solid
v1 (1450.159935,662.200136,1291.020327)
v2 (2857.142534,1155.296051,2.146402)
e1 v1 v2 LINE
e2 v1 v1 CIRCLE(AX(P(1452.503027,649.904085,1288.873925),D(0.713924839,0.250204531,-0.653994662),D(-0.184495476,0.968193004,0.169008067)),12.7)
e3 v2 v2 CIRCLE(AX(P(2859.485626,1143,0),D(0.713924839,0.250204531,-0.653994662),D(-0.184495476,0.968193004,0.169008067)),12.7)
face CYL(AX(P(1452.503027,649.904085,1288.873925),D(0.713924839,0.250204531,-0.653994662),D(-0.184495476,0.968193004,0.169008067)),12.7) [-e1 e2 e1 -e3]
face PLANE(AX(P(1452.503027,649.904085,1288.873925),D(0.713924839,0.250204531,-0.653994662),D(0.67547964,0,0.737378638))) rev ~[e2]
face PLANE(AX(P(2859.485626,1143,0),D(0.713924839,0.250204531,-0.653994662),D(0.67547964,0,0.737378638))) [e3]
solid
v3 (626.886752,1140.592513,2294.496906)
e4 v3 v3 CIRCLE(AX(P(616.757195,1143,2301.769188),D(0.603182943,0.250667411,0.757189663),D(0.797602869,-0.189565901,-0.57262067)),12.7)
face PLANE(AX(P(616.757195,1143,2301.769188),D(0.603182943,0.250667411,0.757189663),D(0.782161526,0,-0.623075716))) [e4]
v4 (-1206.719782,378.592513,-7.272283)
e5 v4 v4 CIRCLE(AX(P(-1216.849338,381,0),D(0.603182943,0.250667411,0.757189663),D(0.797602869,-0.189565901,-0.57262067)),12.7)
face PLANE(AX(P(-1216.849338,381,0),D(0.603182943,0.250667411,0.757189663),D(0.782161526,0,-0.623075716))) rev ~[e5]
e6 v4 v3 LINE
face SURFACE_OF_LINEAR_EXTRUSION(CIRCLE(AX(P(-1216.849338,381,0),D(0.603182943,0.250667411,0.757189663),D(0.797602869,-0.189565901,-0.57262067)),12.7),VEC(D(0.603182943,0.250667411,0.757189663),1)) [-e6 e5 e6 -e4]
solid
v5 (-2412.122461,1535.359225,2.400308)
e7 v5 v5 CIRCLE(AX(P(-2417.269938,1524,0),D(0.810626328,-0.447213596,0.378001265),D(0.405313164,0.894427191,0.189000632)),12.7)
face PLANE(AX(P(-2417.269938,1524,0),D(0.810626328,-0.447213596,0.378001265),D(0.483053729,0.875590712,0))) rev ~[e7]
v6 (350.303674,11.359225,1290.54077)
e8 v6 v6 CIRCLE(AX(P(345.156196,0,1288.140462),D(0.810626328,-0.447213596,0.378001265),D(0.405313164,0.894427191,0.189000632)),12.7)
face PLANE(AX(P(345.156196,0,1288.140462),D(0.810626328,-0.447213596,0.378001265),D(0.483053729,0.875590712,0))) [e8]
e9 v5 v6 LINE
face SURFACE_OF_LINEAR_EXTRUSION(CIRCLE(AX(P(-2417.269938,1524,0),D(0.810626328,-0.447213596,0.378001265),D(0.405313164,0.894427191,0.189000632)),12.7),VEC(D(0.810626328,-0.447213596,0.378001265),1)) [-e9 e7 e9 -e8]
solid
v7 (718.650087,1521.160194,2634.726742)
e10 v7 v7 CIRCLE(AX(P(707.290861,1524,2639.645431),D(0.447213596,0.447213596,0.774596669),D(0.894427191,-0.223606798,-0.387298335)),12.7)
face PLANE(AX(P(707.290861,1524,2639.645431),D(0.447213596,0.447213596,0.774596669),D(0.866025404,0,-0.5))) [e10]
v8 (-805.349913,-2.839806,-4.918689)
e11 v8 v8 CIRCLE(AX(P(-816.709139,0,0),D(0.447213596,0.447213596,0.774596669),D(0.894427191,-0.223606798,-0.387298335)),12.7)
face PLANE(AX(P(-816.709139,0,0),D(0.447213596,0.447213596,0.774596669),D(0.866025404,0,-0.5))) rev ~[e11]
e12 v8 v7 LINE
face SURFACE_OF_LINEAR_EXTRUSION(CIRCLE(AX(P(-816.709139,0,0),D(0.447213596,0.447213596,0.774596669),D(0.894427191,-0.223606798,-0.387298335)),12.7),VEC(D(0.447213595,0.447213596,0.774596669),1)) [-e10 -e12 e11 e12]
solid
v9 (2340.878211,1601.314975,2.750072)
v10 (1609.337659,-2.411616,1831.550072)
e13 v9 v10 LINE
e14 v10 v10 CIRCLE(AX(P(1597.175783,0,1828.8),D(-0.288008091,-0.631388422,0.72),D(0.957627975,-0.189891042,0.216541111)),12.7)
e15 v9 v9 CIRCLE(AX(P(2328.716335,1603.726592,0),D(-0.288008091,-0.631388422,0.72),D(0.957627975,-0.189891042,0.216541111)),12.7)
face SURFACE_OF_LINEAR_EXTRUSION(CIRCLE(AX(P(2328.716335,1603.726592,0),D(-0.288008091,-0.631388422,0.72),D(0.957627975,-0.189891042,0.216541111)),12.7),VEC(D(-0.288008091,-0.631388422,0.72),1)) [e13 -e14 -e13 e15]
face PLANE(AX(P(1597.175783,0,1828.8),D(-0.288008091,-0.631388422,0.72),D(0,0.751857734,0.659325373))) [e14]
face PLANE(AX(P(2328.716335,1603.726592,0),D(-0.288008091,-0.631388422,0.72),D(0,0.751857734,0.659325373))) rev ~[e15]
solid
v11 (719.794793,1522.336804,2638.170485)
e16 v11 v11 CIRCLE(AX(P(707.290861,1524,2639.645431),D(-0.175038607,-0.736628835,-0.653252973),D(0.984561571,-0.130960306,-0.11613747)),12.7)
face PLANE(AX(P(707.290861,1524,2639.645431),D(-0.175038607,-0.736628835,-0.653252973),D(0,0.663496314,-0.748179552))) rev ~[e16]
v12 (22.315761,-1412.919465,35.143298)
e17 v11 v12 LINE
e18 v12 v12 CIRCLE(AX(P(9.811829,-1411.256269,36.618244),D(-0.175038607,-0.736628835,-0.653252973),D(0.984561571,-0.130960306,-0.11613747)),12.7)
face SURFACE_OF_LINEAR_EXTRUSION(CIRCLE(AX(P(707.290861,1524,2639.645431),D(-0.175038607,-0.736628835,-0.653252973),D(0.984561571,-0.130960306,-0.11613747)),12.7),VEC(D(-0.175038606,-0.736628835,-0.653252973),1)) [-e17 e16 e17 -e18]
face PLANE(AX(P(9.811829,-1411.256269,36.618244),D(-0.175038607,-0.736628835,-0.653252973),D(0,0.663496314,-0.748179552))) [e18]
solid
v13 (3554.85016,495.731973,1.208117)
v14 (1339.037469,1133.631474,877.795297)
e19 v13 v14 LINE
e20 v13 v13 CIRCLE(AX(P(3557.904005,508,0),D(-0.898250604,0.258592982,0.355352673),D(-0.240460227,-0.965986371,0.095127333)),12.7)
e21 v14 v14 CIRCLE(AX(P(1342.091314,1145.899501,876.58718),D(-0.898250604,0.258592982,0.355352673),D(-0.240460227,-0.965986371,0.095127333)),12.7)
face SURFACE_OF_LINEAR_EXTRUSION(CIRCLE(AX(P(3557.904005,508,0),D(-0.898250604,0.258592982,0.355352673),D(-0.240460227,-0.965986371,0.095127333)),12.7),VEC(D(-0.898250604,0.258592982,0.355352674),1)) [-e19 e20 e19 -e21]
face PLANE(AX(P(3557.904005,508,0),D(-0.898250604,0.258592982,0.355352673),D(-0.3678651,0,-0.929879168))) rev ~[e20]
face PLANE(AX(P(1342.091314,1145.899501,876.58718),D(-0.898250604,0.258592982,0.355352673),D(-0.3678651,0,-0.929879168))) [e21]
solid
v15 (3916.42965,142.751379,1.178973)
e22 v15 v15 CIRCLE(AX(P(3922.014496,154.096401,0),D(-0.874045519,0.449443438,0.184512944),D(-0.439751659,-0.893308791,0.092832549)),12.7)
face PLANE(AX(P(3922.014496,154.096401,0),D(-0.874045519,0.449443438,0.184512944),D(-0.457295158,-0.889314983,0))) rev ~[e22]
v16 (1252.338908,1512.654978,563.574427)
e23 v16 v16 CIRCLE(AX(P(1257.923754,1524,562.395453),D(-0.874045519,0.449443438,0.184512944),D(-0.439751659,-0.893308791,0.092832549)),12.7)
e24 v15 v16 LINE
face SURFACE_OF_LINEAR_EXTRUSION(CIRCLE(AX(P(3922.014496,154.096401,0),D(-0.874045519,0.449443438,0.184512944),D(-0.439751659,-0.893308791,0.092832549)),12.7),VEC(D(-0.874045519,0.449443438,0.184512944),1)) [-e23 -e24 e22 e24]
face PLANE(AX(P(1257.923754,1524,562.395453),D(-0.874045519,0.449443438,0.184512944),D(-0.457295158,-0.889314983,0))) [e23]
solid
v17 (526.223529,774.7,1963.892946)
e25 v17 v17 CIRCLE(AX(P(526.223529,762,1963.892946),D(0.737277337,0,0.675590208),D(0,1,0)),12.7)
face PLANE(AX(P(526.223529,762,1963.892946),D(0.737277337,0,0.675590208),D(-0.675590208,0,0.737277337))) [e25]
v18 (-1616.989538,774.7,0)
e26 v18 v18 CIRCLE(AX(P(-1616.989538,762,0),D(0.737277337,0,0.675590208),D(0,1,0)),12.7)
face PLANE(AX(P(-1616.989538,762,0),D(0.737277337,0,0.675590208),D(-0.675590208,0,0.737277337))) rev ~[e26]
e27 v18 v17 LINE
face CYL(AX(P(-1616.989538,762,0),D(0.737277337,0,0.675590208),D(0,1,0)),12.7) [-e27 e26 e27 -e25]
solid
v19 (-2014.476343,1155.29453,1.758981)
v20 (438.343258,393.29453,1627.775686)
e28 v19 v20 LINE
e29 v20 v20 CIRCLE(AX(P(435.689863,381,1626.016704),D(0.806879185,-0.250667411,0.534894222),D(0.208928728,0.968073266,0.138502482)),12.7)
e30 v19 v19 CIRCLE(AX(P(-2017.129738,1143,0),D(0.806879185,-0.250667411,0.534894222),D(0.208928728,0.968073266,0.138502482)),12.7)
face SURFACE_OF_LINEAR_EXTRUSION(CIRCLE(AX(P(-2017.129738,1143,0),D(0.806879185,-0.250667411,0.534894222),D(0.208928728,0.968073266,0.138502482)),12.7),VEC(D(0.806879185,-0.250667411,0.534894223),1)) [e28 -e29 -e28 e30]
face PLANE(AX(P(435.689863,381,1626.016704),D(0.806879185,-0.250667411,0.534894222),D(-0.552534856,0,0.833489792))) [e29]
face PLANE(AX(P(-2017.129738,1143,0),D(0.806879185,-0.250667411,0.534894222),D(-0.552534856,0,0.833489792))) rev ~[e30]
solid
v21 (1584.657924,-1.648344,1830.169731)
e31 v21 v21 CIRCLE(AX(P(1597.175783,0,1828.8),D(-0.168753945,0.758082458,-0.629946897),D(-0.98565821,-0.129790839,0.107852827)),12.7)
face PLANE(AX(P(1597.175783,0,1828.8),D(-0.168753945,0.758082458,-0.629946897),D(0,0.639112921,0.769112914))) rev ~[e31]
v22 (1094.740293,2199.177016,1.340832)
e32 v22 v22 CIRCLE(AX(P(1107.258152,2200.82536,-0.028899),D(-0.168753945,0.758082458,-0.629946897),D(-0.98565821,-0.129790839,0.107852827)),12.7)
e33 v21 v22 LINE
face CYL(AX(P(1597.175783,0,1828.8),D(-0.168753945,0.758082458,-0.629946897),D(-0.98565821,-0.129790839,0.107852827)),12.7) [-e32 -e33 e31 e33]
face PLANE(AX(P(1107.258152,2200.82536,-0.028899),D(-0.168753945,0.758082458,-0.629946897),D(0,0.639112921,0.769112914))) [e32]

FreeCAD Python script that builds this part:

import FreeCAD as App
import Part
import Sketcher

V = App.Vector
Q = App.Units.Quantity

doc = App.newDocument("Part")
body = doc.addObject("PartDesign::Body", "Body")

# Sketch on an angled plane
sketch1 = doc.addObject("Sketcher::SketchObject", "Sketch")
body.addObject(sketch1)
sketch1.Placement = App.Placement(V(520.001502, 2188.363517, 1940.672026), App.Rotation(V(0.984561571, -0.130960306, -0.11613747), V(0, -0.663496314, 0.748179553), V(-0.175038607, -0.736628835, -0.653252973), "ZXY"))
sketch1.addGeometry(Part.Circle(V(190, 964, 0), V(0, 0, 1), 13), False)
sketch1.addConstraint(Sketcher.Constraint("Diameter", 0, Q("1 in")))
sketch1.addConstraint(Sketcher.Constraint("DistanceX", -1, 1, 0, 3, 190.226153))
sketch1.addConstraint(Sketcher.Constraint("DistanceY", -1, 1, 0, 3, 963.760355))

# Sketch on an angled plane
sketch2 = doc.addObject("Sketcher::SketchObject", "Sketch001")
body.addObject(sketch2)
sketch2.Placement = App.Placement(V(0, -639.451442, 721.065789), App.Rotation(V(0, -0.748179552, -0.663496314), V(1.000000001, 0, 0), V(0, -0.663496314, 0.748179552), "ZXY"))
sketch2.addGeometry(Part.LineSegment(V(-2892, 707, 0), V(1032, 10, 0)), False)
sketch2.addConstraint(Sketcher.Constraint("DistanceX", 0, 1, -1, 1, 2891.620652))
sketch2.addConstraint(Sketcher.Constraint("DistanceY", -1, 1, 0, 2, 9.811829))
sketch2.addConstraint(Sketcher.Constraint("Distance", 0, 3984.715414))
sketch2.addConstraint(Sketcher.Constraint("DistanceY", -1, 1, 0, 1, 707.290862))
doc.recompute()

additivepipe = doc.addObject("PartDesign::AdditivePipe", "AdditivePipe")
body.addObject(additivepipe)
additivepipe.Profile = sketch1
additivepipe.Spine = (sketch2, ["Edge1"])
body2 = doc.addObject("PartDesign::Body", "Body001")

# Sketch on an angled plane
sketch3 = doc.addObject("Sketcher::SketchObject", "Sketch002")
body2.addObject(sketch3)
sketch3.Placement = App.Placement(V(621.516466, -342.883773, 289.817888), App.Rotation(V(0.405313164, 0.894427191, 0.189000632), V(-0.422618262, 0, 0.906307787), V(0.810626328, -0.447213596, 0.378001265), "ZXY"))
sketch3.addGeometry(Part.Circle(V(383, 1022, 0), V(0, 0, 1), 13), False)
sketch3.addConstraint(Sketcher.Constraint("Diameter", 0, Q("1 in")))
sketch3.addConstraint(Sketcher.Constraint("DistanceX", -1, 1, 0, 3, 383.355712))
sketch3.addConstraint(Sketcher.Constraint("DistanceY", -1, 1, 0, 3, 1021.58242))

# Sketch on an angled plane
sketch4 = doc.addObject("Sketcher::SketchObject", "Sketch003")
body2.addObject(sketch4)
sketch4.Placement = App.Placement(V(80.539059, 145.986353, 0), App.Rotation(V(0.875590712, -0.483053729, 0), V(0, 0, 1), V(-0.483053729, -0.875590712, 0), "ZXY"))
sketch4.addGeometry(Part.LineSegment(V(-2853, 0, 0), V(302, 1288, 0)), False)
sketch4.addConstraint(Sketcher.Constraint("PointOnObject", 0, 1, -1))
sketch4.addConstraint(Sketcher.Constraint("DistanceX", 0, 1, -1, 1, 2852.71299))
sketch4.addConstraint(Sketcher.Constraint("DistanceX", -1, 1, 0, 2, 302.21556))
sketch4.addConstraint(Sketcher.Constraint("DistanceY", -1, 1, 0, 2, 1288.140462))
doc.recompute()

additivepipe2 = doc.addObject("PartDesign::AdditivePipe", "AdditivePipe001")
body2.addObject(additivepipe2)
additivepipe2.Profile = sketch3
additivepipe2.Spine = (sketch4, ["Edge1"])
body3 = doc.addObject("PartDesign::Body", "Body002")

# Sketch on an angled plane
sketch5 = doc.addObject("Sketcher::SketchObject", "Sketch004")
body3.addObject(sketch5)
sketch5.Placement = App.Placement(V(908.377921, -282.199301, 602.179497), App.Rotation(V(0.208928728, 0.968073266, 0.138502482), V(-0.552534855, 0, 0.833489791), V(0.806879185, -0.250667411, 0.534894222), "ZXY"))
sketch5.addGeometry(Part.Circle(V(685, 1115, 0), V(0, 0, 1), 13), False)
sketch5.addConstraint(Sketcher.Constraint("Diameter", 0, Q("1 in")))
sketch5.addConstraint(Sketcher.Constraint("DistanceX", -1, 1, 0, 3, 685.071392))
sketch5.addConstraint(Sketcher.Constraint("DistanceY", -1, 1, 0, 3, 1114.534487))

# Sketch on an angled plane
sketch6 = doc.addObject("Sketcher::SketchObject", "Sketch005")
body3.addObject(sketch6)
sketch6.Placement = App.Placement(V(-615.819153, 0, 928.953119), App.Rotation(V(0.833489792, 0, 0.552534856), V(0, 1, 0), V(-0.552534856, 0, 0.833489792), "ZXY"))
sketch6.addGeometry(Part.LineSegment(V(-1681, 1143, 0), V(1262, 381, 0)), False)
sketch6.addConstraint(Sketcher.Constraint("DistanceY", -1, 1, 0, 1, Q("45 in")))
sketch6.addConstraint(Sketcher.Constraint("DistanceY", -1, 1, 0, 2, Q("15 in")))
sketch6.addConstraint(Sketcher.Constraint("Distance", 0, 3039.884591))
sketch6.addConstraint(Sketcher.Constraint("DistanceX", -1, 1, 0, 2, 1261.573959))
doc.recompute()

additivepipe3 = doc.addObject("PartDesign::AdditivePipe", "AdditivePipe002")
body3.addObject(additivepipe3)
additivepipe3.Profile = sketch5
additivepipe3.Spine = (sketch6, ["Edge1"])
body4 = doc.addObject("PartDesign::Body", "Body003")

# Sketch on an angled plane
sketch7 = doc.addObject("Sketcher::SketchObject", "Sketch006")
body4.addObject(sketch7)
sketch7.Placement = App.Placement(V(1264.253336, 0, 1158.474744), App.Rotation(V(0, 1, 0), V(-0.675590208, 0, 0.737277337), V(0.737277337, 0, 0.675590208), "ZXY"))
sketch7.addGeometry(Part.Circle(V(762, 1092, 0), V(0, 0, 1), 13), False)
sketch7.addConstraint(Sketcher.Constraint("Diameter", 0, Q("1 in")))
sketch7.addConstraint(Sketcher.Constraint("DistanceX", -1, 1, 0, 3, Q("30 in")))
sketch7.addConstraint(Sketcher.Constraint("DistanceY", -1, 1, 0, 3, 1092.422299))

# Sketch on an angled plane
sketch8 = doc.addObject("Sketcher::SketchObject", "Sketch007")
body4.addObject(sketch8)
sketch8.Placement = App.Placement(V(-738.029807, 0, 805.418203), App.Rotation(V(0.737277337, 0, 0.675590208), V(0, 1.000000001, 0), V(-0.675590208, 0, 0.737277337), "ZXY"))
sketch8.addGeometry(Part.LineSegment(V(-1192, 762, 0), V(1715, 762, 0)), False)
sketch8.addConstraint(Sketcher.Constraint("Horizontal", 0))
sketch8.addConstraint(Sketcher.Constraint("DistanceY", -1, 1, 0, 1, Q("30 in")))
sketch8.addConstraint(Sketcher.Constraint("DistanceX", 0, 1, 0, 2, 2906.929268))
sketch8.addConstraint(Sketcher.Constraint("DistanceX", 0, 1, -1, 1, 1192.169742))
doc.recompute()

additivepipe4 = doc.addObject("PartDesign::AdditivePipe", "AdditivePipe003")
body4.addObject(additivepipe4)
additivepipe4.Profile = sketch7
additivepipe4.Spine = (sketch8, ["Edge1"])
body5 = doc.addObject("PartDesign::Body", "Body004")

# Sketch on an angled plane
sketch9 = doc.addObject("Sketcher::SketchObject", "Sketch008")
body5.addObject(sketch9)
sketch9.Placement = App.Placement(V(1448.487204, 601.954252, 1818.319882), App.Rotation(V(0.797602869, -0.189565901, -0.57262067), V(0, 0.949331669, -0.314275964), V(0.603182943, 0.250667411, 0.757189663), "ZXY"))
sketch9.addGeometry(Part.Circle(V(-1043, 362, 0), V(0, 0, 1), 13), False)
sketch9.addConstraint(Sketcher.Constraint("Diameter", 0, Q("1 in")))
sketch9.addConstraint(Sketcher.Constraint("DistanceX", 0, 3, -1, 1, 1042.787131))
sketch9.addConstraint(Sketcher.Constraint("DistanceY", -1, 1, 0, 3, 361.695365))

# Sketch on an angled plane
sketch10 = doc.addObject("Sketcher::SketchObject", "Sketch009")
body5.addObject(sketch10)
sketch10.Placement = App.Placement(V(-744.440015, 0, 593.026478), App.Rotation(V(0.623075716, 0, 0.782161526), V(0, 1.000000001, 0), V(-0.782161526, 0, 0.623075716), "ZXY"))
sketch10.addGeometry(Part.LineSegment(V(-758, 381, 0), V(2185, 1143, 0)), False)
sketch10.addConstraint(Sketcher.Constraint("DistanceY", -1, 1, 0, 1, Q("15 in")))
sketch10.addConstraint(Sketcher.Constraint("DistanceY", -1, 1, 0, 2, Q("45.0000001 in")))
sketch10.addConstraint(Sketcher.Constraint("Distance", 0, 3039.884592))
sketch10.addConstraint(Sketcher.Constraint("DistanceX", 0, 1, -1, 1, 758.189273))
doc.recompute()

additivepipe5 = doc.addObject("PartDesign::AdditivePipe", "AdditivePipe004")
body5.addObject(additivepipe5)
additivepipe5.Profile = sketch9
additivepipe5.Spine = (sketch10, ["Edge1"])
body6 = doc.addObject("PartDesign::Body", "Body005")

# Sketch on an angled plane
sketch11 = doc.addObject("Sketcher::SketchObject", "Sketch010")
body6.addObject(sketch11)
sketch11.Placement = App.Placement(V(1360.658172, 1360.658172, 2356.729086), App.Rotation(V(0.894427191, -0.223606798, -0.387298335), V(0, 0.866025404, -0.500000001), V(0.447213596, 0.447213596, 0.774596669), "ZXY"))
sketch11.addGeometry(Part.Circle(V(-730, 0, 0), V(0, 0, 1), 13), False)
sketch11.addConstraint(Sketcher.Constraint("PointOnObject", 0, 3, -1))
sketch11.addConstraint(Sketcher.Constraint("Diameter", 0, Q("1 in")))
sketch11.addConstraint(Sketcher.Constraint("DistanceX", 0, 3, -1, 1, 730.486861))

# Sketch on an angled plane
sketch12 = doc.addObject("Sketcher::SketchObject", "Sketch011")
body6.addObject(sketch12)
sketch12.Placement = App.Placement(V(0, 0, 0), App.Rotation(V(0, 0.5, 0.866025404), V(1, 0, 0), V(0, 0.866025404, -0.5), "ZXY"))
sketch12.addGeometry(Part.LineSegment(V(0, -817, 0), V(3048, 707, 0)), False)
sketch12.addConstraint(Sketcher.Constraint("PointOnObject", 0, 1, -2))
sketch12.addConstraint(Sketcher.Constraint("DistanceX", -1, 1, 0, 2, Q("120 in")))
sketch12.addConstraint(Sketcher.Constraint("DistanceY", 0, 1, 0, 2, Q("60 in")))
sketch12.addConstraint(Sketcher.Constraint("DistanceY", 0, 1, -1, 1, 816.709139))
doc.recompute()

additivepipe6 = doc.addObject("PartDesign::AdditivePipe", "AdditivePipe005")
body6.addObject(additivepipe6)
additivepipe6.Profile = sketch11
additivepipe6.Spine = (sketch12, ["Edge1"])
body7 = doc.addObject("PartDesign::Body", "Body006")

# Sketch on an angled plane
sketch13 = doc.addObject("Sketcher::SketchObject", "Sketch012")
body7.addObject(sketch13)
sketch13.Placement = App.Placement(V(239.89666, -1077.672283, 895.517768), App.Rotation(V(-0.98565821, -0.129790839, 0.107852827), V(0, 0.639112921, 0.769112915), V(-0.168753945, 0.758082458, -0.629946897), "ZXY"))
sketch13.addGeometry(Part.Circle(V(-1377, 1407, 0), V(0, 0, 1), 13), False)
sketch13.addConstraint(Sketcher.Constraint("Diameter", 0, Q("1 in")))
sketch13.addConstraint(Sketcher.Constraint("DistanceY", -1, 1, 0, 3, 1406.553699))
sketch13.addConstraint(Sketcher.Constraint("DistanceX", 0, 3, -1, 1, 1377.028175))

# Sketch on an angled plane
sketch14 = doc.addObject("Sketcher::SketchObject", "Sketch013")
body7.addObject(sketch14)
sketch14.Placement = App.Placement(V(0, 898.946642, 1081.798613), App.Rotation(V(0, 0.769112914, -0.639112921), V(1, 0, 0), V(0, -0.639112921, -0.769112914), "ZXY"))
sketch14.addGeometry(Part.LineSegment(V(-1169, 1597, 0), V(1693, 1107, 0)), False)
sketch14.addConstraint(Sketcher.Constraint("Distance", 0, 2903.147722))
sketch14.addConstraint(Sketcher.Constraint("DistanceX", 0, 1, -1, 1, 1168.80971))
sketch14.addConstraint(Sketcher.Constraint("DistanceY", 0, 2, 0, 1, 489.917631))
sketch14.addConstraint(Sketcher.Constraint("DistanceY", -1, 1, 0, 1, 1597.175784))
doc.recompute()

additivepipe7 = doc.addObject("PartDesign::AdditivePipe", "AdditivePipe006")
body7.addObject(additivepipe7)
additivepipe7.Profile = sketch13
additivepipe7.Spine = (sketch14, ["Edge1"])
body8 = doc.addObject("PartDesign::Body", "Body007")

# Sketch on an angled plane
sketch15 = doc.addObject("Sketcher::SketchObject", "Sketch014")
body8.addObject(sketch15)
sketch15.Placement = App.Placement(V(-246.74703, -540.933476, 616.850245), App.Rotation(V(0.957627975, -0.189891042, 0.216541111), V(0, 0.751857734, 0.659325373), V(-0.288008091, -0.631388422, 0.72), "ZXY"))
sketch15.addGeometry(Part.Circle(V(1926, 1206, 0), V(0, 0, 1), 13), False)
sketch15.addConstraint(Sketcher.Constraint("Diameter", 0, Q("1 in")))
sketch15.addConstraint(Sketcher.Constraint("DistanceY", -1, 1, 0, 3, 1205.774241))
sketch15.addConstraint(Sketcher.Constraint("DistanceX", -1, 1, 0, 3, 1925.510594))

# Sketch on an angled plane
sketch16 = doc.addObject("Sketcher::SketchObject", "Sketch015")
body8.addObject(sketch16)
sketch16.Placement = App.Placement(V(0, 906.57069, 794.997551), App.Rotation(V(0, -0.659325373, 0.751857734), V(1, 0, 0), V(0, 0.751857734, 0.659325373), "ZXY"))
sketch16.addGeometry(Part.LineSegment(V(-1057, 2329, 0), V(1375, 1597, 0)), False)
sketch16.addConstraint(Sketcher.Constraint("Distance", 0, Q("100 in")))
sketch16.addConstraint(Sketcher.Constraint("DistanceY", 0, 2, 0, 1, 731.540552))
sketch16.addConstraint(Sketcher.Constraint("DistanceX", 0, 1, -1, 1, 1057.377632))
sketch16.addConstraint(Sketcher.Constraint("DistanceY", -1, 1, 0, 1, 2328.716334))
doc.recompute()

additivepipe8 = doc.addObject("PartDesign::AdditivePipe", "AdditivePipe007")
body8.addObject(additivepipe8)
additivepipe8.Profile = sketch15
additivepipe8.Spine = (sketch16, ["Edge1"])
body9 = doc.addObject("PartDesign::Body", "Body008")

# Sketch on an angled plane
sketch17 = doc.addObject("Sketcher::SketchObject", "Sketch016")
body9.addObject(sketch17)
sketch17.Placement = App.Placement(V(254.635765, 89.240518, -233.260452), App.Rotation(V(-0.184495476, 0.968193004, 0.169008067), V(0.675479641, -0.000000001, 0.737378639), V(0.713924839, 0.250204531, -0.653994662), "ZXY"))
sketch17.addGeometry(Part.Circle(V(579, 1932, 0), V(0, 0, 1), 13), False)
sketch17.addConstraint(Sketcher.Constraint("Diameter", 0, Q("1 in")))
sketch17.addConstraint(Sketcher.Constraint("DistanceX", -1, 1, 0, 3, 579.082441))
sketch17.addConstraint(Sketcher.Constraint("DistanceY", -1, 1, 0, 3, 1931.524324))

# Sketch on an angled plane
sketch18 = doc.addObject("Sketcher::SketchObject", "Sketch017")
body9.addObject(sketch18)
sketch18.Placement = App.Placement(V(1304.705353, 0, 1424.264774), App.Rotation(V(0.737378638, 0, -0.67547964), V(0, 1, 0), V(0.67547964, 0, 0.737378638), "ZXY"))
sketch18.addGeometry(Part.LineSegment(V(200, 650, 0), V(2109, 1143, 0)), False)
sketch18.addConstraint(Sketcher.Constraint("DistanceY", -1, 1, 0, 2, Q("45 in")))
sketch18.addConstraint(Sketcher.Constraint("DistanceX", -1, 1, 0, 1, 200.436609))
sketch18.addConstraint(Sketcher.Constraint("Distance", 0, 1970.771323))
sketch18.addConstraint(Sketcher.Constraint("DistanceY", -1, 1, 0, 1, 649.904085))
doc.recompute()

additivepipe9 = doc.addObject("PartDesign::AdditivePipe", "AdditivePipe008")
body9.addObject(additivepipe9)
additivepipe9.Profile = sketch17
additivepipe9.Spine = (sketch18, ["Edge1"])
body10 = doc.addObject("PartDesign::Body", "Body009")

# Sketch on an angled plane
sketch19 = doc.addObject("Sketcher::SketchObject", "Sketch018")
body10.addObject(sketch19)
sketch19.Placement = App.Placement(V(536.898009, -154.564947, -212.399682), App.Rotation(V(-0.240460227, -0.965986371, 0.095127333), V(0.3678651, 0, 0.929879168), V(-0.898250604, 0.258592982, 0.355352673), "ZXY"))
sketch19.addGeometry(Part.Circle(V(-1346, 1309, 0), V(0, 0, 1), 13), False)
sketch19.addConstraint(Sketcher.Constraint("Diameter", 0, Q("1 in")))
sketch19.addConstraint(Sketcher.Constraint("DistanceX", 0, 3, -1, 1, 1346.255481))
sketch19.addConstraint(Sketcher.Constraint("DistanceY", -1, 1, 0, 3, 1308.828713))

# Sketch on an angled plane
sketch20 = doc.addObject("Sketcher::SketchObject", "Sketch019")
body10.addObject(sketch20)
sketch20.Placement = App.Placement(V(481.472406, 0, 1217.052556), App.Rotation(V(-0.929879168, 0, 0.3678651), V(0, 0.999999999, 0), V(-0.3678651, 0, -0.929879168), "ZXY"))
sketch20.addGeometry(Part.LineSegment(V(-3308, 508, 0), V(-926, 1146, 0)), False)
sketch20.addConstraint(Sketcher.Constraint("DistanceY", -1, 1, 0, 1, Q("20 in")))
sketch20.addConstraint(Sketcher.Constraint("DistanceY", 0, 1, 0, 2, 637.899499))
sketch20.addConstraint(Sketcher.Constraint("DistanceX", 0, 1, 0, 2, 2382.903891))
sketch20.addConstraint(Sketcher.Constraint("DistanceX", 0, 1, -1, 1, 3308.420814))
doc.recompute()

additivepipe10 = doc.addObject("PartDesign::AdditivePipe", "AdditivePipe009")
body10.addObject(additivepipe10)
additivepipe10.Profile = sketch19
additivepipe10.Spine = (sketch20, ["Edge1"])
body11 = doc.addObject("PartDesign::Body", "Body010")

# Sketch on an angled plane
sketch21 = doc.addObject("Sketcher::SketchObject", "Sketch020")
body11.addObject(sketch21)
sketch21.Placement = App.Placement(V(271.619766, -139.669753, -57.339534), App.Rotation(V(-0.439751659, -0.893308791, 0.092832549), V(0.206550015, 0, 0.978436043), V(-0.874045519, 0.449443438, 0.184512944), "ZXY"))
sketch21.addGeometry(Part.Circle(V(-1862, 810, 0), V(0, 0, 1), 13), False)
sketch21.addConstraint(Sketcher.Constraint("Diameter", 0, Q("1 in")))
sketch21.addConstraint(Sketcher.Constraint("DistanceX", 0, 3, -1, 1, 1862.368052))
sketch21.addConstraint(Sketcher.Constraint("DistanceY", -1, 1, 0, 3, 810.092152))

# Sketch on an angled plane
sketch22 = doc.addObject("Sketcher::SketchObject", "Sketch021")
body11.addObject(sketch22)
sketch22.Placement = App.Placement(V(882.835042, 1716.874577, 0), App.Rotation(V(-0.889314983, 0.457295158, 0), V(0, 0, 1.000000001), V(0.457295158, 0.889314983, 0), "ZXY"))
sketch22.addGeometry(Part.LineSegment(V(-3417, 0, 0), V(-422, 562, 0)), False)
sketch22.addConstraint(Sketcher.Constraint("PointOnObject", 0, 1, -1))
sketch22.addConstraint(Sketcher.Constraint("Distance", 0, Q("120.0000001 in")))
sketch22.addConstraint(Sketcher.Constraint("DistanceX", 0, 1, -1, 1, 3417.438718))
sketch22.addConstraint(Sketcher.Constraint("DistanceX", 0, 2, -1, 1, 421.772622))
doc.recompute()

additivepipe11 = doc.addObject("PartDesign::AdditivePipe", "AdditivePipe010")
body11.addObject(additivepipe11)
additivepipe11.Profile = sketch21
additivepipe11.Spine = (sketch22, ["Edge1"])

doc.recompute()
